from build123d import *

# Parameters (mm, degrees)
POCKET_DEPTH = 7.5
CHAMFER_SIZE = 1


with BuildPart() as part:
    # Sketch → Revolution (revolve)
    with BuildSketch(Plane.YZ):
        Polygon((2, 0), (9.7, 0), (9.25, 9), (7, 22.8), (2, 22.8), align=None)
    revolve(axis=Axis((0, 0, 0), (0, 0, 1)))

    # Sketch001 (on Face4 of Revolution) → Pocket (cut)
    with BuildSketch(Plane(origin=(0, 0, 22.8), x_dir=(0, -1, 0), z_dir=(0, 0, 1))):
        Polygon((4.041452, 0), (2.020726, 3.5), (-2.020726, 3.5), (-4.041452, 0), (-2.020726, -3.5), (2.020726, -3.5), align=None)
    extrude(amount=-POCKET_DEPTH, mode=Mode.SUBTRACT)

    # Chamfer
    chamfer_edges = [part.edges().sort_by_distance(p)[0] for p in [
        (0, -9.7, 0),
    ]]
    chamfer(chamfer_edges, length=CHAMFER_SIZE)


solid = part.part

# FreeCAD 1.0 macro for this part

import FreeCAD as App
import Part
import Sketcher

V = App.Vector
Q = App.Units.Quantity


def edges_at(feature, points):
    """Names of the edges that pass closest to the given points."""
    edges = feature.Shape.Edges
    near = lambda p: min(range(len(edges)), key=lambda i: edges[i].distToShape(Part.Vertex(*p))[0])
    return sorted({f"Edge{near(p) + 1}" for p in points})

doc = App.newDocument("Part")
body = doc.addObject("PartDesign::Body", "Body")

# Sketch on YZ plane
sketch1 = doc.addObject("Sketcher::SketchObject", "Sketch")
body.addObject(sketch1)
sketch1.AttachmentSupport = (doc.YZ_Plane, [""])
sketch1.MapMode = "FlatFace"
sketch1.addGeometry([
    Part.LineSegment(V(2, 0, 0), V(10, 0, 0)),  # 0
    Part.LineSegment(V(10, 0, 0), V(9, 9, 0)),  # 1
    Part.LineSegment(V(9, 9, 0), V(7, 23, 0)),  # 2
    Part.LineSegment(V(7, 23, 0), V(2, 23, 0)),  # 3
    Part.LineSegment(V(2, 23, 0), V(2, 0, 0)),  # 4
], False)
sketch1.addConstraint([
    Sketcher.Constraint("Coincident", 0, 2, 1, 1),
    Sketcher.Constraint("Coincident", 1, 2, 2, 1),
    Sketcher.Constraint("Coincident", 2, 2, 3, 1),
    Sketcher.Constraint("Coincident", 3, 2, 4, 1),
    Sketcher.Constraint("Coincident", 4, 2, 0, 1),
    Sketcher.Constraint("Horizontal", 0),
    Sketcher.Constraint("Horizontal", 3),
    Sketcher.Constraint("Vertical", 4),
    Sketcher.Constraint("PointOnObject", 0, 2, -1),
    Sketcher.Constraint("DistanceX", 3, 2, 3, 1, 5.0),
    Sketcher.Constraint("DistanceX", 0, 1, 0, 2, 7.7),
    Sketcher.Constraint("DistanceY", 4, 2, 4, 1, 22.8),
    Sketcher.Constraint("DistanceY", -1, 1, 1, 2, 9.0),
    Sketcher.Constraint("DistanceX", -1, 1, 2, 2, 7.0),
    Sketcher.Constraint("DistanceX", -1, 1, 1, 2, 9.25),
])
revolution = doc.addObject("PartDesign::Revolution", "Revolution")
body.addObject(revolution)
revolution.Profile = sketch1
revolution.ReferenceAxis = (sketch1, ["V_Axis"])
revolution.Angle = 360

# Sketch on XY plane
sketch2 = doc.addObject("Sketcher::SketchObject", "Sketch001")
body.addObject(sketch2)
sketch2.AttachmentSupport = (doc.XY_Plane, [""])
sketch2.MapMode = "FlatFace"
sketch2.AttachmentOffset = App.Placement(V(0, 0, 22.8), App.Rotation())
sketch2.addGeometry([
    Part.LineSegment(V(0, -4, 0), V(3.5, -2, 0)),  # 0
    Part.LineSegment(V(3.5, -2, 0), V(3.5, 2, 0)),  # 1
    Part.LineSegment(V(3.5, 2, 0), V(0, 4, 0)),  # 2
    Part.LineSegment(V(0, 4, 0), V(-3.5, 2, 0)),  # 3
    Part.LineSegment(V(-3.5, 2, 0), V(-3.5, -2, 0)),  # 4
    Part.LineSegment(V(-3.5, -2, 0), V(0, -4, 0)),  # 5
], False)
sketch2.addConstraint([
    Sketcher.Constraint("Coincident", 0, 2, 1, 1),
    Sketcher.Constraint("Coincident", 1, 2, 2, 1),
    Sketcher.Constraint("Coincident", 2, 2, 3, 1),
    Sketcher.Constraint("Coincident", 3, 2, 4, 1),
    Sketcher.Constraint("Coincident", 4, 2, 5, 1),
    Sketcher.Constraint("Coincident", 5, 2, 0, 1),
    Sketcher.Constraint("Vertical", 1),
    Sketcher.Constraint("Vertical", 4),
    Sketcher.Constraint("Symmetric", 0, 2, 3, 2, -1, 1),
    Sketcher.Constraint("Symmetric", 2, 2, 5, 2, -1, 1),
    Sketcher.Constraint("PointOnObject", 2, 2, -2),
    Sketcher.Constraint("Parallel", 2, 5),
    Sketcher.Constraint("Horizontal", 1, 2, 3, 2),
    Sketcher.Constraint("Angle", 0, Q("30.000001 deg")),
    Sketcher.Constraint("DistanceX", 3, 2, 1, 2, 7.0),
    Sketcher.Constraint("DistanceY", 1, 1, 1, 2, 4.041452),
])
pocket1 = doc.addObject("PartDesign::Pocket", "Pocket")
body.addObject(pocket1)
pocket1.Profile = sketch2
pocket1.Length = 7.5
doc.recompute()

chamfer = doc.addObject("PartDesign::Chamfer", "Chamfer")
body.addObject(chamfer)
chamfer.Base = (pocket1, edges_at(pocket1, [(0, -9.7, 0)]))
chamfer.Size = 1

doc.recompute()
